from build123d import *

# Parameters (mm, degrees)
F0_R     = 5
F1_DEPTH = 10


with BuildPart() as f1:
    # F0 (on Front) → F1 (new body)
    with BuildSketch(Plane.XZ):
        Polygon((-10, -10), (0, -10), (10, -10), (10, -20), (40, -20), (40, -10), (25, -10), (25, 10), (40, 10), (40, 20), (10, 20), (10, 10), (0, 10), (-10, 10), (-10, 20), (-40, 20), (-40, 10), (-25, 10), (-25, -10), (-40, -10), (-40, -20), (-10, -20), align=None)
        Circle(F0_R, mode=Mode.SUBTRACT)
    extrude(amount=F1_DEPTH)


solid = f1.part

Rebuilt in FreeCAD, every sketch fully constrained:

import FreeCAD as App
import Part
import Sketcher
from FreeCAD import Vector
Q = App.Units.Quantity

doc = App.newDocument("Part")
body = doc.addObject("PartDesign::Body", "Body")

# Sketch on XZ plane
sketch1 = body.newObject("Sketcher::SketchObject", "Sketch")
sketch1.AttachmentSupport = (doc.getObject("XZ_Plane"), [""])
sketch1.MapMode = "FlatFace"
sketch1.addGeometry([
    Part.LineSegment(Vector(-10, -10, 0), Vector(10, -10, 0)),  # 0
    Part.LineSegment(Vector(10, -10, 0), Vector(10, -20, 0)),  # 1
    Part.LineSegment(Vector(10, -20, 0), Vector(40, -20, 0)),  # 2
    Part.LineSegment(Vector(40, -20, 0), Vector(40, -10, 0)),  # 3
    Part.LineSegment(Vector(40, -10, 0), Vector(25, -10, 0)),  # 4
    Part.LineSegment(Vector(25, -10, 0), Vector(25, 10, 0)),  # 5
    Part.LineSegment(Vector(25, 10, 0), Vector(40, 10, 0)),  # 6
    Part.LineSegment(Vector(40, 10, 0), Vector(40, 20, 0)),  # 7
    Part.LineSegment(Vector(40, 20, 0), Vector(10, 20, 0)),  # 8
    Part.LineSegment(Vector(10, 20, 0), Vector(10, 10, 0)),  # 9
    Part.LineSegment(Vector(10, 10, 0), Vector(-10, 10, 0)),  # 10
    Part.LineSegment(Vector(-10, 10, 0), Vector(-10, 20, 0)),  # 11
    Part.LineSegment(Vector(-10, 20, 0), Vector(-40, 20, 0)),  # 12
    Part.LineSegment(Vector(-40, 20, 0), Vector(-40, 10, 0)),  # 13
    Part.LineSegment(Vector(-40, 10, 0), Vector(-25, 10, 0)),  # 14
    Part.LineSegment(Vector(-25, 10, 0), Vector(-25, -10, 0)),  # 15
    Part.LineSegment(Vector(-25, -10, 0), Vector(-40, -10, 0)),  # 16
    Part.LineSegment(Vector(-40, -10, 0), Vector(-40, -20, 0)),  # 17
    Part.LineSegment(Vector(-40, -20, 0), Vector(-10, -20, 0)),  # 18
    Part.LineSegment(Vector(-10, -20, 0), Vector(-10, -10, 0)),  # 19
    Part.Circle(Vector(0, 0, 0), Vector(0, 0, 1), 5),  # 20
], False)
sketch1.addConstraint([
    Sketcher.Constraint("Coincident", 0, 2, 1, 1),
    Sketcher.Constraint("Coincident", 1, 2, 2, 1),
    Sketcher.Constraint("Coincident", 2, 2, 3, 1),
    Sketcher.Constraint("Coincident", 3, 2, 4, 1),
    Sketcher.Constraint("Coincident", 4, 2, 5, 1),
    Sketcher.Constraint("Coincident", 5, 2, 6, 1),
    Sketcher.Constraint("Coincident", 6, 2, 7, 1),
    Sketcher.Constraint("Coincident", 7, 2, 8, 1),
    Sketcher.Constraint("Coincident", 8, 2, 9, 1),
    Sketcher.Constraint("Coincident", 9, 2, 10, 1),
    Sketcher.Constraint("Coincident", 10, 2, 11, 1),
    Sketcher.Constraint("Coincident", 11, 2, 12, 1),
    Sketcher.Constraint("Coincident", 12, 2, 13, 1),
    Sketcher.Constraint("Coincident", 13, 2, 14, 1),
    Sketcher.Constraint("Coincident", 14, 2, 15, 1),
    Sketcher.Constraint("Coincident", 15, 2, 16, 1),
    Sketcher.Constraint("Coincident", 16, 2, 17, 1),
    Sketcher.Constraint("Coincident", 17, 2, 18, 1),
    Sketcher.Constraint("Coincident", 18, 2, 19, 1),
    Sketcher.Constraint("Coincident", 19, 2, 0, 1),
    Sketcher.Constraint("Horizontal", 0),
    Sketcher.Constraint("Vertical", 1),
    Sketcher.Constraint("Horizontal", 2),
    Sketcher.Constraint("Vertical", 3),
    Sketcher.Constraint("Horizontal", 4),
    Sketcher.Constraint("Vertical", 5),
    Sketcher.Constraint("Horizontal", 6),
    Sketcher.Constraint("Vertical", 7),
    Sketcher.Constraint("Horizontal", 8),
    Sketcher.Constraint("Vertical", 9),
    Sketcher.Constraint("Horizontal", 10),
    Sketcher.Constraint("Vertical", 11),
    Sketcher.Constraint("Horizontal", 12),
    Sketcher.Constraint("Vertical", 13),
    Sketcher.Constraint("Horizontal", 14),
    Sketcher.Constraint("Vertical", 15),
    Sketcher.Constraint("Horizontal", 16),
    Sketcher.Constraint("Vertical", 17),
    Sketcher.Constraint("Horizontal", 18),
    Sketcher.Constraint("Vertical", 19),
    Sketcher.Constraint("Coincident", 20, 3, -1, 1),
    Sketcher.Constraint("Symmetric", 0, 2, 10, 2, -1, 1),
    Sketcher.Constraint("Symmetric", 2, 2, 12, 2, -1, 1),
    Sketcher.Constraint("Symmetric", 4, 2, 14, 2, -1, 1),
    Sketcher.Constraint("Symmetric", 6, 2, 16, 2, -1, 1),
    Sketcher.Constraint("Symmetric", 8, 2, 18, 2, -1, 1),
    Sketcher.Constraint("Symmetric", 8, 2, 11, 2, -2),
    Sketcher.Constraint("Symmetric", 6, 2, 13, 2, -2),
    Sketcher.Constraint("Horizontal", 0, 2, 3, 2),
    Sketcher.Constraint("Equal", 10, 5),
    Sketcher.Constraint("Diameter", 20, Q("10 mm")),
    Sketcher.Constraint("DistanceX", 0, 1, 0, 2, Q("20 mm")),
    Sketcher.Constraint("DistanceX", 2, 1, 2, 2, Q("30 mm")),
    Sketcher.Constraint("DistanceX", 4, 2, 4, 1, Q("15 mm")),
    Sketcher.Constraint("DistanceY", 1, 2, 1, 1, Q("10 mm")),
])
pad1 = body.newObject("PartDesign::Pad", "Pad")
pad1.Profile = sketch1
pad1.Length = 10

doc.recompute()
